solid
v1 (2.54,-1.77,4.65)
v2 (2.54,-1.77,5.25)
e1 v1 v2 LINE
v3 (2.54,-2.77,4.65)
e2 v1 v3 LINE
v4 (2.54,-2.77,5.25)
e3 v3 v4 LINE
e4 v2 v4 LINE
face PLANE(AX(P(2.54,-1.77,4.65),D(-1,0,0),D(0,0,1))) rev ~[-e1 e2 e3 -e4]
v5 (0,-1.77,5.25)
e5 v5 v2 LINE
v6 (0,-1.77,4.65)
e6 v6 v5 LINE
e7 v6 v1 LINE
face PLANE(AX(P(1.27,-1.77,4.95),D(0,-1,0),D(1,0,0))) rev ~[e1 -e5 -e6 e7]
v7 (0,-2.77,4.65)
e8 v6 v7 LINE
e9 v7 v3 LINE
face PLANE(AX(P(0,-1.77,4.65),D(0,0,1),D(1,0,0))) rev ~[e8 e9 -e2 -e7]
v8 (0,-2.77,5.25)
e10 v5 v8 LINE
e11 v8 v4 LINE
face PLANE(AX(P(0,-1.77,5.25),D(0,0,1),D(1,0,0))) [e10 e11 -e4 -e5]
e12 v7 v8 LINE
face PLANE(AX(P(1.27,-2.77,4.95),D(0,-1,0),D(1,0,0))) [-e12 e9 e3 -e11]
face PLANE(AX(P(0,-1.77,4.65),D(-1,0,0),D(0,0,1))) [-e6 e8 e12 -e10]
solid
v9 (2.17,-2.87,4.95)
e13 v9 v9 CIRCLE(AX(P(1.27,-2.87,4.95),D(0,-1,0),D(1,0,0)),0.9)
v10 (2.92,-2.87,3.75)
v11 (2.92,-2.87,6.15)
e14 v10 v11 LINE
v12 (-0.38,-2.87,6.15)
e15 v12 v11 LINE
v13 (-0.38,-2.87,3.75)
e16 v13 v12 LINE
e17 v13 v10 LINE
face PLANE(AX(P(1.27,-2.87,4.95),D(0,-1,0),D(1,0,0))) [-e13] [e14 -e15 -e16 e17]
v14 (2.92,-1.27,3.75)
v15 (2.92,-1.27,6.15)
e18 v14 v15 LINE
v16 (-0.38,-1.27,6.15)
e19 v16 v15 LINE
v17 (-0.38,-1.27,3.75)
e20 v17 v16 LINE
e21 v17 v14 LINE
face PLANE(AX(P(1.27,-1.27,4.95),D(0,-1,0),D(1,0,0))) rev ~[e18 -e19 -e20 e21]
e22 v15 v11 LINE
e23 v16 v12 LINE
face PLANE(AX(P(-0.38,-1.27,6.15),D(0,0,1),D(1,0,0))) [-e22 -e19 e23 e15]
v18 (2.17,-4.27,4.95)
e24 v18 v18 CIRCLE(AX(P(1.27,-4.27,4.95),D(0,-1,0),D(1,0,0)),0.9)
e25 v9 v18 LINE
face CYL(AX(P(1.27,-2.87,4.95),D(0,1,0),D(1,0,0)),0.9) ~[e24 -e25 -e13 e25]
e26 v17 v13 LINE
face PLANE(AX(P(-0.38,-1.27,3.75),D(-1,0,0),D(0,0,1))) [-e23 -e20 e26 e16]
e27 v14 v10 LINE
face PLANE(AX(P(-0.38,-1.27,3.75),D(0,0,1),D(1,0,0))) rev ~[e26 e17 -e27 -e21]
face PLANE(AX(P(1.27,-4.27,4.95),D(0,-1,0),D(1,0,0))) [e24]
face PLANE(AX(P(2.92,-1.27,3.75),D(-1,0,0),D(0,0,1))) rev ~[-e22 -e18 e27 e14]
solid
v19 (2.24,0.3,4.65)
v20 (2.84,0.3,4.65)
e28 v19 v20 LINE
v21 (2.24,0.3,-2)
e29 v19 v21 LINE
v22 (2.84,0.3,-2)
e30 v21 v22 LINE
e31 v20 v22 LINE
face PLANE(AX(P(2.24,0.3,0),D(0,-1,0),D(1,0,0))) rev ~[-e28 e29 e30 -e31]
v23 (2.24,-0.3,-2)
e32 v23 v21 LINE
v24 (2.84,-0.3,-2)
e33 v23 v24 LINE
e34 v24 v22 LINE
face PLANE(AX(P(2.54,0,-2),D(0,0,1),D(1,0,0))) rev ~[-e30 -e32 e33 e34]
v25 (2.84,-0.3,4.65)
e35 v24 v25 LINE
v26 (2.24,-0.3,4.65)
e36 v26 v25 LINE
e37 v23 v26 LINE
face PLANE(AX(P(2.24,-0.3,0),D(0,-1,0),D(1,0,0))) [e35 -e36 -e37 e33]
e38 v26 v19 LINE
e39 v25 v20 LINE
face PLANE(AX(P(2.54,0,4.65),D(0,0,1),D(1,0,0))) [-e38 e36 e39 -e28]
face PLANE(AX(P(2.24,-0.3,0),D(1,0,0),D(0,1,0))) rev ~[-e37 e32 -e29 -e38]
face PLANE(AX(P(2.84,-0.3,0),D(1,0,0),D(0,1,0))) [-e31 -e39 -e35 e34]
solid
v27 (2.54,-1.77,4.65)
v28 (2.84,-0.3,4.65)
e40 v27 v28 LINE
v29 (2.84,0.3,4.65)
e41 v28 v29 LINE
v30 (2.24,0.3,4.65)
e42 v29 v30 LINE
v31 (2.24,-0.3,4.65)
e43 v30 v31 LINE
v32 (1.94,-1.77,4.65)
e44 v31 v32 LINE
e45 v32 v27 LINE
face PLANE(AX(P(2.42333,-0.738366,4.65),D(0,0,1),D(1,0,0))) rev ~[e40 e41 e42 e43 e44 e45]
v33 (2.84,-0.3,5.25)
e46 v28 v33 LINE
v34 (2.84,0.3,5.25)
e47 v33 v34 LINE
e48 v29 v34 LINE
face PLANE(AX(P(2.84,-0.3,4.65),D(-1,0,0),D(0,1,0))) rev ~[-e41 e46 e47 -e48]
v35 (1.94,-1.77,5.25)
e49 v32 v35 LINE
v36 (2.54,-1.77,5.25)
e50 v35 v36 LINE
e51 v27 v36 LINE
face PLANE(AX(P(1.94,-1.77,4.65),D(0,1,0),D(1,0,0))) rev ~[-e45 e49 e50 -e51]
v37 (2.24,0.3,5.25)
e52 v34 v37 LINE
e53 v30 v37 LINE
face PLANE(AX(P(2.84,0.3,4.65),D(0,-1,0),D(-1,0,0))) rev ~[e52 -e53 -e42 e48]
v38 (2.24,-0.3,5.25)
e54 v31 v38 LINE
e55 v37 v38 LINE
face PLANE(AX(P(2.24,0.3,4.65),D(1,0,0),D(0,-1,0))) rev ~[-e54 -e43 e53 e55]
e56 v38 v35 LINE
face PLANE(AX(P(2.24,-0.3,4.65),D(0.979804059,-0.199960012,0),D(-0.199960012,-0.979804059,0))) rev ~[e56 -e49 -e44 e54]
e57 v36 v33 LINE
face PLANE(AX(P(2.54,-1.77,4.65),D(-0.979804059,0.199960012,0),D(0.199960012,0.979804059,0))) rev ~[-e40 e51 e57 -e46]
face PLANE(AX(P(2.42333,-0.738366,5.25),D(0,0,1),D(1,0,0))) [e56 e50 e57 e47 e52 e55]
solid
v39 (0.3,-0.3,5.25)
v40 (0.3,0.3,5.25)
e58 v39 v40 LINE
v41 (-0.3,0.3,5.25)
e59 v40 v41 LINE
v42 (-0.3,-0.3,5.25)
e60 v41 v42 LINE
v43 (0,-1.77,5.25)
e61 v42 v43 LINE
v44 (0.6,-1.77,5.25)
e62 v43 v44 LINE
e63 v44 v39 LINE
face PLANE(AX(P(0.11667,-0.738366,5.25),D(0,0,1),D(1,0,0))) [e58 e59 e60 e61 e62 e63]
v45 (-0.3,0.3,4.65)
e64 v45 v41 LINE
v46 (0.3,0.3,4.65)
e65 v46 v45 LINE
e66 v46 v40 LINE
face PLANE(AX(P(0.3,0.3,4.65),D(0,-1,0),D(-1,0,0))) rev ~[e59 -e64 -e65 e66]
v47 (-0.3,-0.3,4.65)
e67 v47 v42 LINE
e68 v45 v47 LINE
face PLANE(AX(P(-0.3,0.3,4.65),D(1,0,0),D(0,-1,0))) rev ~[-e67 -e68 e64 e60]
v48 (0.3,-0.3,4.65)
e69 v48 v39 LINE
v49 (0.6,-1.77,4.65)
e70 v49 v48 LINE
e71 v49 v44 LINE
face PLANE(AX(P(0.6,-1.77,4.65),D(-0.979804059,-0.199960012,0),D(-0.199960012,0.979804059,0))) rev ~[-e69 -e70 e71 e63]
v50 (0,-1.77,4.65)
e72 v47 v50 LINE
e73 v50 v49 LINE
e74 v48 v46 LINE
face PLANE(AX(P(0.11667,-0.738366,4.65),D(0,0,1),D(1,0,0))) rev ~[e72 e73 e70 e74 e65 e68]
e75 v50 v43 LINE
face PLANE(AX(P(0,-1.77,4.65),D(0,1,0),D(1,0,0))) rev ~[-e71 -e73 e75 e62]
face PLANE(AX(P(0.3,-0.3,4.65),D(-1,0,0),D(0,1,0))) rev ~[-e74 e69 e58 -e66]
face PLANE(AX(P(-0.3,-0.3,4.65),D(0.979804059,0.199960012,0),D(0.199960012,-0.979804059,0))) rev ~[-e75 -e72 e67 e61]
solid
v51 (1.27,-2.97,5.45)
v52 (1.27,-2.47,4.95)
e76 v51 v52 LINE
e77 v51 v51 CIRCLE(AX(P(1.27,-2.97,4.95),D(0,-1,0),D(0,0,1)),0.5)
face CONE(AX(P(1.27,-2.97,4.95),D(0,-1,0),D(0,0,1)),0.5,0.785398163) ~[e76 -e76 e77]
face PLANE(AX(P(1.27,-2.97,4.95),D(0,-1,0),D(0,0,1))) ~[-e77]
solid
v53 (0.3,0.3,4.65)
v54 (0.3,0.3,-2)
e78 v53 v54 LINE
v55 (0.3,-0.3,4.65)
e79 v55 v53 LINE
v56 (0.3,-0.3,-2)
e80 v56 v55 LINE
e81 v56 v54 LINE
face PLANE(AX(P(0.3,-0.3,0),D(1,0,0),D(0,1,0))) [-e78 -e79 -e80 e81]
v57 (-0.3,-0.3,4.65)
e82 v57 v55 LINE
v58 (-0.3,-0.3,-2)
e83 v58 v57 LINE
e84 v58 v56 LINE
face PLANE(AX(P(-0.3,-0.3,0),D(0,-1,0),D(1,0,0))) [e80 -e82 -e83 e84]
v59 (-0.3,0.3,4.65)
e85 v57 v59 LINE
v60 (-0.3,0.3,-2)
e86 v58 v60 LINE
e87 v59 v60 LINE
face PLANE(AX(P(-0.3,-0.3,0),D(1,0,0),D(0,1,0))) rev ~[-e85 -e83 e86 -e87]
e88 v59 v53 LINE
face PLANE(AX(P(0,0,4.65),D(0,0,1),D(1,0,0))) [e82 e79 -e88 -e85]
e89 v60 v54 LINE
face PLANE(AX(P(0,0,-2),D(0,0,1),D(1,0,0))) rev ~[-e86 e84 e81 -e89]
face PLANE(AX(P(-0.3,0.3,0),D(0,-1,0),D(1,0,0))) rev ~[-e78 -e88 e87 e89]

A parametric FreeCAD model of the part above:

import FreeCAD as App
import Part
import Sketcher

V = App.Vector
Q = App.Units.Quantity


def add_polygon(sketch, points):
    """Adds a closed chain of lines whose ends are joined by coincident constraints."""
    first, n = sketch.GeometryCount, len(points)
    for a, b in zip(points, points[1:] + points[:1]):
        sketch.addGeometry(Part.LineSegment(App.Vector(*a, 0), App.Vector(*b, 0)), False)
    for i in range(n):
        sketch.addConstraint(Sketcher.Constraint("Coincident", first + i, 2, first + (i + 1) % n, 1))

doc = App.newDocument("Part")
body = doc.addObject("PartDesign::Body", "Body")
body.AllowCompound = True

# Sketch on XY plane
sketch1 = body.newObject("Sketcher::SketchObject", "Sketch")
sketch1.AttachmentSupport = (doc.getObject("XY_Plane"), [""])
sketch1.MapMode = "FlatFace"
add_polygon(sketch1, [(-0.3, 0.3), (-0.3, -0.3), (0.3, -0.3), (0.3, 0.3)])  # lines 0-3
add_polygon(sketch1, [(2.2, 0.3), (2.2, -0.3), (2.8, -0.3), (2.8, 0.3)])  # lines 4-7
sketch1.addConstraint([
    Sketcher.Constraint("Vertical", 0),
    Sketcher.Constraint("Horizontal", 1),
    Sketcher.Constraint("Vertical", 2),
    Sketcher.Constraint("Horizontal", 3),
    Sketcher.Constraint("Vertical", 4),
    Sketcher.Constraint("Horizontal", 5),
    Sketcher.Constraint("Vertical", 6),
    Sketcher.Constraint("Horizontal", 7),
    Sketcher.Constraint("Symmetric", 0, 2, 2, 2, -1, 1),
    Sketcher.Constraint("Horizontal", 1, 2, 4, 2),
    Sketcher.Constraint("Horizontal", 3, 2, 6, 2),
    Sketcher.Constraint("Equal", 3, 5),
    Sketcher.Constraint("Equal", 7, 0),
    Sketcher.Constraint("DistanceX", 1, 1, 1, 2, Q("0.6 mm")),
    Sketcher.Constraint("DistanceX", -1, 1, 4, 2, Q("2.24 mm")),
])
pad1 = body.newObject("PartDesign::Pad", "Pad")
pad1.Profile = sketch1
pad1.Type = "TwoLengths"
pad1.Length = 4.65
pad1.Length2 = 2
body2 = doc.addObject("PartDesign::Body", "Body001")
body2.AllowCompound = True

# Sketch on XY plane
sketch2 = body2.newObject("Sketcher::SketchObject", "Sketch001")
sketch2.AttachmentSupport = (doc.getObject("XY_Plane001"), [""])
sketch2.MapMode = "FlatFace"
sketch2.AttachmentOffset = App.Placement(V(0, 0, 4.65), App.Rotation())
add_polygon(sketch2, [(0.3, 0.3), (-0.3, 0.3), (-0.3, -0.3), (0, -1.8), (0.6, -1.8), (0.3, -0.3)])  # lines 0-5
add_polygon(sketch2, [(2.8, 0.3), (2.2, 0.3), (2.2, -0.3), (1.9, -1.8), (2.5, -1.8), (2.8, -0.3)])  # lines 6-11
sketch2.addConstraint([
    Sketcher.Constraint("Horizontal", 0),
    Sketcher.Constraint("Vertical", 1),
    Sketcher.Constraint("Horizontal", 3),
    Sketcher.Constraint("Vertical", 5),
    Sketcher.Constraint("Horizontal", 6),
    Sketcher.Constraint("Vertical", 7),
    Sketcher.Constraint("Horizontal", 9),
    Sketcher.Constraint("Vertical", 11),
    Sketcher.Constraint("Symmetric", 0, 2, 4, 2, -1, 1),
    Sketcher.Constraint("PointOnObject", 2, 2, -2),
    Sketcher.Constraint("Parallel", 2, 4),
    Sketcher.Constraint("Parallel", 8, 10),
    Sketcher.Constraint("Horizontal", 1, 2, 4, 2),
    Sketcher.Constraint("Horizontal", 5, 2, 6, 2),
    Sketcher.Constraint("Horizontal", 4, 2, 7, 2),
    Sketcher.Constraint("Horizontal", 3, 2, 8, 2),
    Sketcher.Constraint("Horizontal", 7, 2, 10, 2),
    Sketcher.Constraint("Equal", 3, 6),
    Sketcher.Constraint("Equal", 9, 1),
    Sketcher.Constraint("Equal", 4, 8),
    Sketcher.Constraint("DistanceX", 0, 2, 0, 1, Q("0.6 mm")),
    Sketcher.Constraint("DistanceY", 2, 2, -1, 1, Q("1.77 mm")),
    Sketcher.Constraint("DistanceX", -1, 1, 6, 2, Q("2.24 mm")),
])
pad2 = body2.newObject("PartDesign::Pad", "Pad001")
pad2.Profile = sketch2
pad2.Length = 0.6
body3 = doc.addObject("PartDesign::Body", "Body002")

# Sketch on XZ plane
sketch3 = body3.newObject("Sketcher::SketchObject", "Sketch002")
sketch3.AttachmentSupport = (doc.getObject("XZ_Plane002"), [""])
sketch3.MapMode = "FlatFace"
sketch3.AttachmentOffset = App.Placement(V(0, 0, 1.77), App.Rotation())
add_polygon(sketch3, [(0, 5.2), (0, 4.7), (2.5, 4.7), (2.5, 5.2)])  # lines 0-3
sketch3.addConstraint([
    Sketcher.Constraint("Vertical", 0),
    Sketcher.Constraint("Horizontal", 1),
    Sketcher.Constraint("Vertical", 2),
    Sketcher.Constraint("Horizontal", 3),
    Sketcher.Constraint("PointOnObject", 0, 2, -2),
    Sketcher.Constraint("DistanceY", 0, 2, 0, 1, Q("0.6 mm")),
    Sketcher.Constraint("DistanceX", 1, 1, 1, 2, Q("2.54 mm")),
    Sketcher.Constraint("DistanceY", -1, 1, 0, 2, Q("4.65 mm")),
])
pad3 = body3.newObject("PartDesign::Pad", "Pad002")
pad3.Profile = sketch3
pad3.Length = 1
body4 = doc.addObject("PartDesign::Body", "Body003")

# Sketch on YZ plane
sketch4 = body4.newObject("Sketcher::SketchObject", "Sketch003")
sketch4.AttachmentSupport = (doc.getObject("YZ_Plane003"), [""])
sketch4.MapMode = "FlatFace"
sketch4.AttachmentOffset = App.Placement(V(0, 0, 1.27), App.Rotation())
add_polygon(sketch4, [(-3, 5), (-2.5, 5), (-3, 5.5)])  # lines 0-2
sketch4.addGeometry(Part.LineSegment(V(-2.5, 5, 0), V(-3, 5, 0)), True)  # axis
sketch4.addConstraint([
    Sketcher.Constraint("Horizontal", 0),
    Sketcher.Constraint("Vertical", 2),
    Sketcher.Constraint("Horizontal", 3),
    Sketcher.Constraint("Coincident", 3, 1, 0, 2),
    Sketcher.Constraint("Vertical", 1, 2, 3, 2),
    Sketcher.Constraint("Equal", 3, 2),
    Sketcher.Constraint("DistanceX", 0, 1, 0, 2, Q("0.5 mm")),
    Sketcher.Constraint("DistanceX", 0, 2, -1, 1, Q("2.47 mm")),
    Sketcher.Constraint("DistanceY", -1, 1, 0, 2, Q("4.95 mm")),
])
revolution = body4.newObject("PartDesign::Revolution", "Revolution")
revolution.Profile = sketch4
revolution.ReferenceAxis = (sketch4, ["Axis0"])
revolution.Angle = 360
body5 = doc.addObject("PartDesign::Body", "Body004")

# Sketch on XZ plane
sketch5 = body5.newObject("Sketcher::SketchObject", "Sketch004")
sketch5.AttachmentSupport = (doc.getObject("XZ_Plane004"), [""])
sketch5.MapMode = "FlatFace"
sketch5.AttachmentOffset = App.Placement(V(0, 0, 1.27), App.Rotation())
add_polygon(sketch5, [(-0.4, 6.2), (-0.4, 3.8), (2.9, 3.8), (2.9, 6.2)])  # lines 0-3
sketch5.addConstraint([
    Sketcher.Constraint("Vertical", 0),
    Sketcher.Constraint("Horizontal", 1),
    Sketcher.Constraint("Vertical", 2),
    Sketcher.Constraint("Horizontal", 3),
    Sketcher.Constraint("DistanceX", 1, 1, 1, 2, Q("3.3 mm")),
    Sketcher.Constraint("DistanceY", 0, 2, 0, 1, Q("2.4 mm")),
    Sketcher.Constraint("DistanceX", 0, 2, -1, 1, Q("0.38 mm")),
    Sketcher.Constraint("DistanceY", -1, 1, 0, 2, Q("3.75 mm")),
])
pad4 = body5.newObject("PartDesign::Pad", "Pad003")
pad4.Profile = sketch5
pad4.Length = 1.6

# Sketch on XZ plane
sketch6 = body5.newObject("Sketcher::SketchObject", "Sketch005")
sketch6.AttachmentSupport = (doc.getObject("XZ_Plane004"), [""])
sketch6.MapMode = "FlatFace"
sketch6.AttachmentOffset = App.Placement(V(0, 0, 2.87), App.Rotation())
sketch6.addGeometry(Part.Circle(V(1.3, 5, 0), V(0, 0, 1), 0.9), False)
sketch6.addConstraint([
    Sketcher.Constraint("Diameter", 0, Q("1.8 mm")),
    Sketcher.Constraint("DistanceX", -1, 1, 0, 3, Q("1.27 mm")),
    Sketcher.Constraint("DistanceY", -1, 1, 0, 3, Q("4.95 mm")),
])
pad5 = body5.newObject("PartDesign::Pad", "Pad004")
pad5.Profile = sketch6
pad5.Length = 1.4

doc.recompute()
